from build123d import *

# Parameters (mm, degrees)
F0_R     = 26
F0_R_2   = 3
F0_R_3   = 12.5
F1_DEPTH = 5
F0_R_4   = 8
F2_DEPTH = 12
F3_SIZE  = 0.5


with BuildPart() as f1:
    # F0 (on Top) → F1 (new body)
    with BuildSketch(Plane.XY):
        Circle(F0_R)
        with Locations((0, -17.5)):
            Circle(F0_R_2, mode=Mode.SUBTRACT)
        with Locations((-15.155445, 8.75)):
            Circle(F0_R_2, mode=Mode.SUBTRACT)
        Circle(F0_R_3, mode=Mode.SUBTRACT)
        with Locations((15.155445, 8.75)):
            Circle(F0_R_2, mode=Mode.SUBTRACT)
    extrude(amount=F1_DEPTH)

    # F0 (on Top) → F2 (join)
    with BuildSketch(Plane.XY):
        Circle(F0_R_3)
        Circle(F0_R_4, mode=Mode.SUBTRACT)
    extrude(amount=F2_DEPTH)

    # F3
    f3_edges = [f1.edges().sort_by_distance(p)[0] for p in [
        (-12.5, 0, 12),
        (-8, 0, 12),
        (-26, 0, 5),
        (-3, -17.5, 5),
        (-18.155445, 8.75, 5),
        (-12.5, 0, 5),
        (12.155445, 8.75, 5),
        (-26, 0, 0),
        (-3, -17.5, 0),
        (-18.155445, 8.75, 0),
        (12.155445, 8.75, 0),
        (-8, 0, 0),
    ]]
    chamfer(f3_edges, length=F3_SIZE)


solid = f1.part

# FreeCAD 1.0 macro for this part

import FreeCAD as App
import Part
import Sketcher


def edges_at(feature, points):
    """Names of the edges that pass closest to the given points."""
    edges = feature.Shape.Edges
    near = lambda p: min(range(len(edges)), key=lambda i: edges[i].distToShape(Part.Vertex(*p))[0])
    return sorted({f"Edge{near(p) + 1}" for p in points})

doc = App.newDocument("Part")
body = doc.addObject("PartDesign::Body", "Body")

# Sketch on XY plane
sketch1 = doc.addObject("Sketcher::SketchObject", "Sketch")
body.addObject(sketch1)
sketch1.AttachmentSupport = (doc.XY_Plane, [""])
sketch1.MapMode = "FlatFace"
sketch1.addGeometry([
    Part.Circle(App.Vector(0, 0, 0), App.Vector(0, 0, 1), 26),  # 0
    Part.Circle(App.Vector(0, -17.5, 0), App.Vector(0, 0, 1), 3),  # 1
    Part.Circle(App.Vector(-15.2, 8.8, 0), App.Vector(0, 0, 1), 3),  # 2
    Part.Circle(App.Vector(0, 0, 0), App.Vector(0, 0, 1), 12.5),  # 3
    Part.Circle(App.Vector(15.2, 8.8, 0), App.Vector(0, 0, 1), 3),  # 4
], False)
sketch1.addConstraint([
    Sketcher.Constraint("Coincident", 0, 3, -1, 1),
    Sketcher.Constraint("Coincident", 3, 3, -1, 1),
    Sketcher.Constraint("Equal", 1, 2),
    Sketcher.Constraint("Equal", 2, 4),
    Sketcher.Constraint("Symmetric", 2, 3, 4, 3, -2),
    Sketcher.Constraint("PointOnObject", 1, 3, -2),
    Sketcher.Constraint("Diameter", 0, 52.0),
    Sketcher.Constraint("Diameter", 1, 6.0),
    Sketcher.Constraint("Diameter", 3, 25.0),
    Sketcher.Constraint("DistanceY", 1, 3, -1, 1, 17.5),
    Sketcher.Constraint("DistanceY", -1, 1, 2, 3, 8.75),
    Sketcher.Constraint("DistanceX", 2, 3, 4, 3, 30.31089),
])
pad1 = doc.addObject("PartDesign::Pad", "Pad")
body.addObject(pad1)
pad1.Profile = sketch1
pad1.Length = 5

# Sketch on XY plane
sketch2 = doc.addObject("Sketcher::SketchObject", "Sketch001")
body.addObject(sketch2)
sketch2.AttachmentSupport = (doc.XY_Plane, [""])
sketch2.MapMode = "FlatFace"
sketch2.addGeometry([
    Part.Circle(App.Vector(0, 0, 0), App.Vector(0, 0, 1), 12),
    Part.Circle(App.Vector(0, 0, 0), App.Vector(0, 0, 1), 8),
], False)
sketch2.addConstraint([
    Sketcher.Constraint("Coincident", 0, 3, -1, 1),
    Sketcher.Constraint("Coincident", 1, 3, -1, 1),
    Sketcher.Constraint("Diameter", 0, 25.0),
    Sketcher.Constraint("Diameter", 1, 16.0),
])
pad2 = doc.addObject("PartDesign::Pad", "Pad001")
body.addObject(pad2)
pad2.Profile = sketch2
pad2.Length = 12
doc.recompute()

chamfer = doc.addObject("PartDesign::Chamfer", "Chamfer")
body.addObject(chamfer)
chamfer.Base = (pad2, edges_at(pad2, [
    (-12.5, 0, 12),
    (-8, 0, 12),
    (-26, 0, 5),
    (-3, -17.5, 5),
    (-18.155, 8.75, 5),
    (-12.5, 0, 5),
    (12.155, 8.75, 5),
    (-26, 0, 0),
    (-3, -17.5, 0),
    (-18.155, 8.75, 0),
    (12.155, 8.75, 0),
    (-8, 0, 0),
]))
chamfer.Size = 0.5

doc.recompute()
